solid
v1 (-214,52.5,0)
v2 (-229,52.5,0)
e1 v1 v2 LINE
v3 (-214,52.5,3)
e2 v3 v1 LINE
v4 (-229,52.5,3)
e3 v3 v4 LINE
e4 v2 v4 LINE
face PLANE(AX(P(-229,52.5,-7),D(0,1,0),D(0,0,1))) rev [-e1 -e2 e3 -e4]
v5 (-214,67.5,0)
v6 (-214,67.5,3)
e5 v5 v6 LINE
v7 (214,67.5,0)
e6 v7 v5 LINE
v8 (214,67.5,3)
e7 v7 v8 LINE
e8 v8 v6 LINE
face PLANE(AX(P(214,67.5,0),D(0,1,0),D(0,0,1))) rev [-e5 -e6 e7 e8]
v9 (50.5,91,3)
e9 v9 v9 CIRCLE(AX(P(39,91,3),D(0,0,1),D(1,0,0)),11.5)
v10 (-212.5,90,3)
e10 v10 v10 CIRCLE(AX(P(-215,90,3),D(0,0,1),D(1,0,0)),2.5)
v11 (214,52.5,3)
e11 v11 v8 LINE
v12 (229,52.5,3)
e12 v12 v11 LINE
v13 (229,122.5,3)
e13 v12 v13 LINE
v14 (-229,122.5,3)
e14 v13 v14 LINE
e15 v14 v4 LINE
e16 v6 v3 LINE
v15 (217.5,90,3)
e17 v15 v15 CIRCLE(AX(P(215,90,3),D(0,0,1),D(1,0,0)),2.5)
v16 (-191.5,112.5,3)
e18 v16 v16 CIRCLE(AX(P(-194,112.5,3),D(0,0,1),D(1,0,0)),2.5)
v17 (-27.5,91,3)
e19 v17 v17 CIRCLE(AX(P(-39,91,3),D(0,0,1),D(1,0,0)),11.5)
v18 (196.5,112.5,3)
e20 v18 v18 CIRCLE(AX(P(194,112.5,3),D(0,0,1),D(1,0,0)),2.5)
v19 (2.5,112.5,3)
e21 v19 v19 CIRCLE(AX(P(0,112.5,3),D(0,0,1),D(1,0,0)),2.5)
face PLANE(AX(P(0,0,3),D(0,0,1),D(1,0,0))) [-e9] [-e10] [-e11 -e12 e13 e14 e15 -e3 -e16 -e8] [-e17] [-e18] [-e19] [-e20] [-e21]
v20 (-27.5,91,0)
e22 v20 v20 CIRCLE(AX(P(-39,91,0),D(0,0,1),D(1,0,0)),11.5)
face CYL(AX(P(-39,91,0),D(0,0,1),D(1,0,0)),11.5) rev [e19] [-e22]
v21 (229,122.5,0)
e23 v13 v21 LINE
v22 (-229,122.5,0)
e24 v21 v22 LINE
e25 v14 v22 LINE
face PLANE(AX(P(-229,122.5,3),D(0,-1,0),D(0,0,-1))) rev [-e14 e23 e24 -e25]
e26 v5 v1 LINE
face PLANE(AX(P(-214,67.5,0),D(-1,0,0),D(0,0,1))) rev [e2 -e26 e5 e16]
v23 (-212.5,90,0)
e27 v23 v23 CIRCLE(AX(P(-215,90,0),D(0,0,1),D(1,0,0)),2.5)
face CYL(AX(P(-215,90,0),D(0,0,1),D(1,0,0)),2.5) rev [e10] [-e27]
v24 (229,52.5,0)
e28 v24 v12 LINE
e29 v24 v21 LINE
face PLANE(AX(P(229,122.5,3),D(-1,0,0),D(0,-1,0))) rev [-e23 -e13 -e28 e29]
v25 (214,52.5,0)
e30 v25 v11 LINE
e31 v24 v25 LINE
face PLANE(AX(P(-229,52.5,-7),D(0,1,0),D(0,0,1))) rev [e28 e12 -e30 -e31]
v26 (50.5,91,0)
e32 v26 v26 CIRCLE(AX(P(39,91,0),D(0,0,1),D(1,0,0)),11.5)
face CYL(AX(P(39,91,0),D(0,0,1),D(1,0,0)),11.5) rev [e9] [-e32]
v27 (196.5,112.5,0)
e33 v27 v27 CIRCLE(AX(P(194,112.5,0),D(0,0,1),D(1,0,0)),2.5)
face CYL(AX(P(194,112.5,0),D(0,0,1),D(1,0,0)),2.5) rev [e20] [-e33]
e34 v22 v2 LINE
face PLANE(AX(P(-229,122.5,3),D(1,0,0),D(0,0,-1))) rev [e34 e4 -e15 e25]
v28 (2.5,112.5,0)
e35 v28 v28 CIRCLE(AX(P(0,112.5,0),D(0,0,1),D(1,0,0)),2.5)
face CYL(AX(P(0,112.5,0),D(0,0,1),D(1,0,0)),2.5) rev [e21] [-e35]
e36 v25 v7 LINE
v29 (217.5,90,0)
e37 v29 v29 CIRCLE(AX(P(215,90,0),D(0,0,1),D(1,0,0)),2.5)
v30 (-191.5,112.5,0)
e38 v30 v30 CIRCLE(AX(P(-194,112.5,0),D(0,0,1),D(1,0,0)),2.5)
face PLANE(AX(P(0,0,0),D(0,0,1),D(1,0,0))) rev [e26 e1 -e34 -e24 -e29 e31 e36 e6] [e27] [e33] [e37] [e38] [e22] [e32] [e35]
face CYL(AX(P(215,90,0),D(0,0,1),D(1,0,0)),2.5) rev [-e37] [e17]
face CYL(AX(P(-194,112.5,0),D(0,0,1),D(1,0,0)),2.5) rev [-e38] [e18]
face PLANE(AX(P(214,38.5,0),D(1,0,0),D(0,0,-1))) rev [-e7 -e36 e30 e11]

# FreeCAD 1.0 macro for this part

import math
import FreeCAD as App
import Part
import Sketcher

V = App.Vector
Q = App.Units.Quantity


def add_polygon(sketch, points):
    """Adds a closed chain of lines whose ends are joined by coincident constraints."""
    first, n = sketch.GeometryCount, len(points)
    for a, b in zip(points, points[1:] + points[:1]):
        sketch.addGeometry(Part.LineSegment(App.Vector(*a, 0), App.Vector(*b, 0)), False)
    for i in range(n):
        sketch.addConstraint(Sketcher.Constraint("Coincident", first + i, 2, first + (i + 1) % n, 1))

doc = App.newDocument("Part")
body = doc.addObject("PartDesign::Body", "Body")

# Sketch on XY plane
sketch1 = body.newObject("Sketcher::SketchObject", "Sketch")
sketch1.AttachmentSupport = (doc.getObject("XY_Plane"), [""])
sketch1.MapMode = "FlatFace"
add_polygon(sketch1, [(-229, 122.5), (-229, -122.5), (229, -122.5), (229, 122.5)])  # lines 0-3
sketch1.addConstraint([
    Sketcher.Constraint("Vertical", 0),
    Sketcher.Constraint("Horizontal", 1),
    Sketcher.Constraint("Vertical", 2),
    Sketcher.Constraint("Horizontal", 3),
    Sketcher.Constraint("Symmetric", 0, 2, 2, 2, -1, 1),
    Sketcher.Constraint("DistanceX", 1, 1, 1, 2, Q("458 mm")),
    Sketcher.Constraint("DistanceY", 0, 2, 0, 1, Q("245 mm")),
])
pad1 = body.newObject("PartDesign::Pad", "Pad")
pad1.Profile = sketch1
pad1.Length = 3

# Sketch on XY plane
sketch2 = body.newObject("Sketcher::SketchObject", "Sketch001")
sketch2.AttachmentSupport = (doc.getObject("XY_Plane"), [""])
sketch2.MapMode = "FlatFace"
sketch2.AttachmentOffset = App.Placement(V(0, 0, 3), App.Rotation())
sketch2.addGeometry([
    Part.LineSegment(V(-148, -122.5, 0), V(-148, -107.5, 0)),  # 0
    Part.ArcOfCircle(Part.Circle(V(-155, -107.5, 0), V(0, 0, 1), 7), math.radians(0), math.radians(180)),  # 1
    Part.LineSegment(V(-162, -107.5, 0), V(-162, -122.5, 0)),  # 2
    Part.ArcOfCircle(Part.Circle(V(-155, -122.5, 0), V(0, 0, 1), 7), math.radians(180), math.radians(360)),  # 3
    Part.LineSegment(V(162, -122.5, 0), V(162, -107.5, 0)),  # 4
    Part.ArcOfCircle(Part.Circle(V(155, -107.5, 0), V(0, 0, 1), 7), math.radians(0), math.radians(180)),  # 5
    Part.LineSegment(V(148, -107.5, 0), V(148, -122.5, 0)),  # 6
    Part.ArcOfCircle(Part.Circle(V(155, -122.5, 0), V(0, 0, 1), 7), math.radians(180), math.radians(360)),  # 7
], False)
sketch2.addConstraint([
    Sketcher.Constraint("Tangent", 0, 2, 1, 1),
    Sketcher.Constraint("Tangent", 1, 2, 2, 1),
    Sketcher.Constraint("Tangent", 2, 2, 3, 1),
    Sketcher.Constraint("Tangent", 3, 2, 0, 1),
    Sketcher.Constraint("Tangent", 4, 2, 5, 1),
    Sketcher.Constraint("Tangent", 5, 2, 6, 1),
    Sketcher.Constraint("Tangent", 6, 2, 7, 1),
    Sketcher.Constraint("Tangent", 7, 2, 4, 1),
    Sketcher.Constraint("Vertical", 0),
    Sketcher.Constraint("Vertical", 2),
    Sketcher.Constraint("Vertical", 4),
    Sketcher.Constraint("Vertical", 6),
    Sketcher.Constraint("Equal", 3, 5),
    Sketcher.Constraint("Symmetric", 1, 3, 5, 3, -2),
    Sketcher.Constraint("Horizontal", 3, 3, 7, 3),
    Sketcher.Constraint("Radius", 1, Q("7 mm")),
    Sketcher.Constraint("DistanceY", 0, 1, 0, 2, Q("15 mm")),
    Sketcher.Constraint("DistanceX", 1, 3, -1, 1, Q("155 mm")),
    Sketcher.Constraint("DistanceY", 1, 3, -1, 1, Q("107.5 mm")),
])
pocket1 = body.newObject("PartDesign::Pocket", "Pocket")
pocket1.Profile = sketch2
pocket1.Type = "ThroughAll"

# Sketch on XY plane
sketch3 = body.newObject("Sketcher::SketchObject", "Sketch002")
sketch3.AttachmentSupport = (doc.getObject("XY_Plane"), [""])
sketch3.MapMode = "FlatFace"
sketch3.AttachmentOffset = App.Placement(V(0, 0, 3), App.Rotation())
sketch3.addGeometry([
    Part.Circle(V(-194, 112.5, 0), V(0, 0, 1), 2.5),  # 0
    Part.Circle(V(-194, -107.5, 0), V(0, 0, 1), 2.5),  # 1
    Part.Circle(V(194, -107.5, 0), V(0, 0, 1), 2.5),  # 2
    Part.Circle(V(194, 112.5, 0), V(0, 0, 1), 2.5),  # 3
    Part.Circle(V(-215, 0, 0), V(0, 0, 1), 2.5),  # 4
    Part.Circle(V(-215, -90, 0), V(0, 0, 1), 2.5),  # 5
    Part.Circle(V(-215, 90, 0), V(0, 0, 1), 2.5),  # 6
    Part.Circle(V(215, 0, 0), V(0, 0, 1), 2.5),  # 7
    Part.Circle(V(215, -90, 0), V(0, 0, 1), 2.5),  # 8
    Part.Circle(V(215, 90, 0), V(0, 0, 1), 2.5),  # 9
    Part.Circle(V(0, 112.5, 0), V(0, 0, 1), 2.5),  # 10
    Part.Circle(V(0, -107.5, 0), V(0, 0, 1), 2.5),  # 11
], False)
sketch3.addConstraint([
    Sketcher.Constraint("Equal", 0, 1),
    Sketcher.Constraint("Equal", 1, 2),
    Sketcher.Constraint("Equal", 2, 3),
    Sketcher.Constraint("Equal", 3, 4),
    Sketcher.Constraint("Equal", 4, 5),
    Sketcher.Constraint("Equal", 5, 6),
    Sketcher.Constraint("Equal", 6, 7),
    Sketcher.Constraint("Equal", 7, 8),
    Sketcher.Constraint("Equal", 8, 9),
    Sketcher.Constraint("Equal", 9, 10),
    Sketcher.Constraint("Equal", 10, 11),
    Sketcher.Constraint("Symmetric", 4, 3, 7, 3, -1, 1),
    Sketcher.Constraint("Symmetric", 6, 3, 8, 3, -1, 1),
    Sketcher.Constraint("Symmetric", 5, 3, 9, 3, -1, 1),
    Sketcher.Constraint("Symmetric", 1, 3, 2, 3, -2),
    Sketcher.Constraint("Symmetric", 0, 3, 3, 3, -2),
    Sketcher.Constraint("Symmetric", 5, 3, 8, 3, -2),
    Sketcher.Constraint("PointOnObject", 4, 3, -1),
    Sketcher.Constraint("PointOnObject", 10, 3, -2),
    Sketcher.Constraint("PointOnObject", 11, 3, -2),
    Sketcher.Constraint("Horizontal", 3, 3, 10, 3),
    Sketcher.Constraint("Horizontal", 2, 3, 11, 3),
    Sketcher.Constraint("Vertical", 0, 3, 1, 3),
    Sketcher.Constraint("Vertical", 4, 3, 5, 3),
    Sketcher.Constraint("Diameter", 0, Q("5 mm")),
    Sketcher.Constraint("DistanceX", 0, 3, -1, 1, Q("194 mm")),
    Sketcher.Constraint("DistanceX", 4, 3, -1, 1, Q("215 mm")),
    Sketcher.Constraint("DistanceY", 5, 3, -1, 1, Q("90 mm")),
    Sketcher.Constraint("DistanceY", 1, 3, 0, 3, Q("220 mm")),
    Sketcher.Constraint("DistanceY", -1, 1, 0, 3, Q("112.5 mm")),
])
pocket2 = body.newObject("PartDesign::Pocket", "Pocket001")
pocket2.Profile = sketch3
pocket2.Type = "ThroughAll"

# Sketch on XY plane
sketch4 = body.newObject("Sketcher::SketchObject", "Sketch003")
sketch4.AttachmentSupport = (doc.getObject("XY_Plane"), [""])
sketch4.MapMode = "FlatFace"
sketch4.AttachmentOffset = App.Placement(V(0, 0, 3), App.Rotation())
sketch4.addGeometry([
    Part.Circle(V(-39, 91, 0), V(0, 0, 1), 11.5),
    Part.Circle(V(39, 91, 0), V(0, 0, 1), 11.5),
], False)
sketch4.addConstraint([
    Sketcher.Constraint("Equal", 0, 1),
    Sketcher.Constraint("Symmetric", 0, 3, 1, 3, -2),
    Sketcher.Constraint("Diameter", 0, Q("23 mm")),
    Sketcher.Constraint("DistanceX", 0, 3, -1, 1, Q("39 mm")),
    Sketcher.Constraint("DistanceY", -1, 1, 0, 3, Q("91 mm")),
])
pocket3 = body.newObject("PartDesign::Pocket", "Pocket002")
pocket3.Profile = sketch4
pocket3.Type = "ThroughAll"

# Sketch on XY plane
sketch5 = body.newObject("Sketcher::SketchObject", "Sketch004")
sketch5.AttachmentSupport = (doc.getObject("XY_Plane"), [""])
sketch5.MapMode = "FlatFace"
sketch5.AttachmentOffset = App.Placement(V(0, 0, 3), App.Rotation())
add_polygon(sketch5, [(-214, 67.5), (-214, 38.5), (214, 38.5), (214, 67.5)])  # lines 0-3
sketch5.addConstraint([
    Sketcher.Constraint("Vertical", 0),
    Sketcher.Constraint("Horizontal", 1),
    Sketcher.Constraint("Vertical", 2),
    Sketcher.Constraint("Horizontal", 3),
    Sketcher.Constraint("DistanceX", 1, 1, 1, 2, Q("428 mm")),
    Sketcher.Constraint("DistanceY", 0, 2, 0, 1, Q("29 mm")),
    Sketcher.Constraint("DistanceX", 0, 2, -1, 1, Q("214 mm")),
    Sketcher.Constraint("DistanceY", -1, 1, 0, 2, Q("38.5 mm")),
])
pocket4 = body.newObject("PartDesign::Pocket", "Pocket003")
pocket4.Profile = sketch5
pocket4.Type = "ThroughAll"

# Sketch on XY plane
sketch6 = body.newObject("Sketcher::SketchObject", "Sketch005")
sketch6.AttachmentSupport = (doc.getObject("XY_Plane"), [""])
sketch6.MapMode = "FlatFace"
sketch6.AttachmentOffset = App.Placement(V(0, 0, 3), App.Rotation())
sketch6.addGeometry(Part.Circle(V(5.296172, 15.703566, 0), V(0, 0, 1), 1.5), False)  # 0
sketch6.addGeometry(Part.Circle(V(5.679688, -26.054673, 0), V(0, 0, 1), 1.5), False)  # 1
sketch6.addGeometry(Part.Circle(V(-83.3, 14.88, 0), V(0, 0, 1), 1.5), False)  # 2
sketch6.addGeometry(Part.Circle(V(-83.367998, -26.737947, 0), V(0, 0, 1), 1.5), False)  # 3
add_polygon(sketch6, [(-73.95, 15.1), (-73.95, -26.1), (-4.05, -26.1), (-4.05, 15.1)])  # lines 4-7
sketch6.addConstraint([
    Sketcher.Constraint("Vertical", 4),
    Sketcher.Constraint("Horizontal", 5),
    Sketcher.Constraint("Vertical", 6),
    Sketcher.Constraint("Horizontal", 7),
    Sketcher.Constraint("Equal", 0, 1),
    Sketcher.Constraint("Equal", 1, 2),
    Sketcher.Constraint("Equal", 2, 3),
    Sketcher.Constraint("Diameter", 0, Q("3 mm")),
    Sketcher.Constraint("DistanceX", 5, 1, 5, 2, Q("69.9 mm")),
    Sketcher.Constraint("DistanceY", 4, 2, 4, 1, Q("41.2 mm")),
    Sketcher.Constraint("DistanceX", 2, 3, -1, 1, Q("83.3 mm")),
    Sketcher.Constraint("DistanceY", 4, 2, -1, 1, Q("26.1 mm")),
    Sketcher.Constraint("DistanceY", -1, 1, 2, 3, Q("14.88 mm")),
    Sketcher.Constraint("DistanceX", 4, 2, -1, 1, Q("73.95 mm")),
    Sketcher.Constraint("DistanceY", 1, 3, 0, 3, Q("41.758239 mm")),
    Sketcher.Constraint("DistanceX", 3, 3, 0, 3, Q("88.66417 mm")),
    Sketcher.Constraint("DistanceX", -1, 1, 0, 3, Q("5.296172 mm")),
    Sketcher.Constraint("DistanceY", -1, 1, 0, 3, Q("15.703566 mm")),
    Sketcher.Constraint("DistanceX", -1, 1, 1, 3, Q("5.679688 mm")),
    Sketcher.Constraint("DistanceY", 3, 3, -1, 1, Q("26.737947 mm")),
])
pocket5 = body.newObject("PartDesign::Pocket", "Pocket004")
pocket5.Profile = sketch6
pocket5.Type = "ThroughAll"

# Sketch on XY plane
sketch7 = body.newObject("Sketcher::SketchObject", "Sketch006")
sketch7.AttachmentSupport = (doc.getObject("XY_Plane"), [""])
sketch7.MapMode = "FlatFace"
sketch7.AttachmentOffset = App.Placement(V(0, 0, 3), App.Rotation())
add_polygon(sketch7, [(-229, 52.5), (-229, -122.5), (229, -122.5), (229, 52.5)])  # lines 0-3
sketch7.addConstraint([
    Sketcher.Constraint("Vertical", 0),
    Sketcher.Constraint("Horizontal", 1),
    Sketcher.Constraint("Vertical", 2),
    Sketcher.Constraint("Horizontal", 3),
    Sketcher.Constraint("DistanceX", 1, 1, 1, 2, Q("458 mm")),
    Sketcher.Constraint("DistanceY", 0, 2, 0, 1, Q("175 mm")),
    Sketcher.Constraint("DistanceX", 0, 2, -1, 1, Q("229 mm")),
    Sketcher.Constraint("DistanceY", 0, 2, -1, 1, Q("122.5 mm")),
])
pocket6 = body.newObject("PartDesign::Pocket", "Pocket005")
pocket6.Profile = sketch7
pocket6.Length = 10

doc.recompute()
